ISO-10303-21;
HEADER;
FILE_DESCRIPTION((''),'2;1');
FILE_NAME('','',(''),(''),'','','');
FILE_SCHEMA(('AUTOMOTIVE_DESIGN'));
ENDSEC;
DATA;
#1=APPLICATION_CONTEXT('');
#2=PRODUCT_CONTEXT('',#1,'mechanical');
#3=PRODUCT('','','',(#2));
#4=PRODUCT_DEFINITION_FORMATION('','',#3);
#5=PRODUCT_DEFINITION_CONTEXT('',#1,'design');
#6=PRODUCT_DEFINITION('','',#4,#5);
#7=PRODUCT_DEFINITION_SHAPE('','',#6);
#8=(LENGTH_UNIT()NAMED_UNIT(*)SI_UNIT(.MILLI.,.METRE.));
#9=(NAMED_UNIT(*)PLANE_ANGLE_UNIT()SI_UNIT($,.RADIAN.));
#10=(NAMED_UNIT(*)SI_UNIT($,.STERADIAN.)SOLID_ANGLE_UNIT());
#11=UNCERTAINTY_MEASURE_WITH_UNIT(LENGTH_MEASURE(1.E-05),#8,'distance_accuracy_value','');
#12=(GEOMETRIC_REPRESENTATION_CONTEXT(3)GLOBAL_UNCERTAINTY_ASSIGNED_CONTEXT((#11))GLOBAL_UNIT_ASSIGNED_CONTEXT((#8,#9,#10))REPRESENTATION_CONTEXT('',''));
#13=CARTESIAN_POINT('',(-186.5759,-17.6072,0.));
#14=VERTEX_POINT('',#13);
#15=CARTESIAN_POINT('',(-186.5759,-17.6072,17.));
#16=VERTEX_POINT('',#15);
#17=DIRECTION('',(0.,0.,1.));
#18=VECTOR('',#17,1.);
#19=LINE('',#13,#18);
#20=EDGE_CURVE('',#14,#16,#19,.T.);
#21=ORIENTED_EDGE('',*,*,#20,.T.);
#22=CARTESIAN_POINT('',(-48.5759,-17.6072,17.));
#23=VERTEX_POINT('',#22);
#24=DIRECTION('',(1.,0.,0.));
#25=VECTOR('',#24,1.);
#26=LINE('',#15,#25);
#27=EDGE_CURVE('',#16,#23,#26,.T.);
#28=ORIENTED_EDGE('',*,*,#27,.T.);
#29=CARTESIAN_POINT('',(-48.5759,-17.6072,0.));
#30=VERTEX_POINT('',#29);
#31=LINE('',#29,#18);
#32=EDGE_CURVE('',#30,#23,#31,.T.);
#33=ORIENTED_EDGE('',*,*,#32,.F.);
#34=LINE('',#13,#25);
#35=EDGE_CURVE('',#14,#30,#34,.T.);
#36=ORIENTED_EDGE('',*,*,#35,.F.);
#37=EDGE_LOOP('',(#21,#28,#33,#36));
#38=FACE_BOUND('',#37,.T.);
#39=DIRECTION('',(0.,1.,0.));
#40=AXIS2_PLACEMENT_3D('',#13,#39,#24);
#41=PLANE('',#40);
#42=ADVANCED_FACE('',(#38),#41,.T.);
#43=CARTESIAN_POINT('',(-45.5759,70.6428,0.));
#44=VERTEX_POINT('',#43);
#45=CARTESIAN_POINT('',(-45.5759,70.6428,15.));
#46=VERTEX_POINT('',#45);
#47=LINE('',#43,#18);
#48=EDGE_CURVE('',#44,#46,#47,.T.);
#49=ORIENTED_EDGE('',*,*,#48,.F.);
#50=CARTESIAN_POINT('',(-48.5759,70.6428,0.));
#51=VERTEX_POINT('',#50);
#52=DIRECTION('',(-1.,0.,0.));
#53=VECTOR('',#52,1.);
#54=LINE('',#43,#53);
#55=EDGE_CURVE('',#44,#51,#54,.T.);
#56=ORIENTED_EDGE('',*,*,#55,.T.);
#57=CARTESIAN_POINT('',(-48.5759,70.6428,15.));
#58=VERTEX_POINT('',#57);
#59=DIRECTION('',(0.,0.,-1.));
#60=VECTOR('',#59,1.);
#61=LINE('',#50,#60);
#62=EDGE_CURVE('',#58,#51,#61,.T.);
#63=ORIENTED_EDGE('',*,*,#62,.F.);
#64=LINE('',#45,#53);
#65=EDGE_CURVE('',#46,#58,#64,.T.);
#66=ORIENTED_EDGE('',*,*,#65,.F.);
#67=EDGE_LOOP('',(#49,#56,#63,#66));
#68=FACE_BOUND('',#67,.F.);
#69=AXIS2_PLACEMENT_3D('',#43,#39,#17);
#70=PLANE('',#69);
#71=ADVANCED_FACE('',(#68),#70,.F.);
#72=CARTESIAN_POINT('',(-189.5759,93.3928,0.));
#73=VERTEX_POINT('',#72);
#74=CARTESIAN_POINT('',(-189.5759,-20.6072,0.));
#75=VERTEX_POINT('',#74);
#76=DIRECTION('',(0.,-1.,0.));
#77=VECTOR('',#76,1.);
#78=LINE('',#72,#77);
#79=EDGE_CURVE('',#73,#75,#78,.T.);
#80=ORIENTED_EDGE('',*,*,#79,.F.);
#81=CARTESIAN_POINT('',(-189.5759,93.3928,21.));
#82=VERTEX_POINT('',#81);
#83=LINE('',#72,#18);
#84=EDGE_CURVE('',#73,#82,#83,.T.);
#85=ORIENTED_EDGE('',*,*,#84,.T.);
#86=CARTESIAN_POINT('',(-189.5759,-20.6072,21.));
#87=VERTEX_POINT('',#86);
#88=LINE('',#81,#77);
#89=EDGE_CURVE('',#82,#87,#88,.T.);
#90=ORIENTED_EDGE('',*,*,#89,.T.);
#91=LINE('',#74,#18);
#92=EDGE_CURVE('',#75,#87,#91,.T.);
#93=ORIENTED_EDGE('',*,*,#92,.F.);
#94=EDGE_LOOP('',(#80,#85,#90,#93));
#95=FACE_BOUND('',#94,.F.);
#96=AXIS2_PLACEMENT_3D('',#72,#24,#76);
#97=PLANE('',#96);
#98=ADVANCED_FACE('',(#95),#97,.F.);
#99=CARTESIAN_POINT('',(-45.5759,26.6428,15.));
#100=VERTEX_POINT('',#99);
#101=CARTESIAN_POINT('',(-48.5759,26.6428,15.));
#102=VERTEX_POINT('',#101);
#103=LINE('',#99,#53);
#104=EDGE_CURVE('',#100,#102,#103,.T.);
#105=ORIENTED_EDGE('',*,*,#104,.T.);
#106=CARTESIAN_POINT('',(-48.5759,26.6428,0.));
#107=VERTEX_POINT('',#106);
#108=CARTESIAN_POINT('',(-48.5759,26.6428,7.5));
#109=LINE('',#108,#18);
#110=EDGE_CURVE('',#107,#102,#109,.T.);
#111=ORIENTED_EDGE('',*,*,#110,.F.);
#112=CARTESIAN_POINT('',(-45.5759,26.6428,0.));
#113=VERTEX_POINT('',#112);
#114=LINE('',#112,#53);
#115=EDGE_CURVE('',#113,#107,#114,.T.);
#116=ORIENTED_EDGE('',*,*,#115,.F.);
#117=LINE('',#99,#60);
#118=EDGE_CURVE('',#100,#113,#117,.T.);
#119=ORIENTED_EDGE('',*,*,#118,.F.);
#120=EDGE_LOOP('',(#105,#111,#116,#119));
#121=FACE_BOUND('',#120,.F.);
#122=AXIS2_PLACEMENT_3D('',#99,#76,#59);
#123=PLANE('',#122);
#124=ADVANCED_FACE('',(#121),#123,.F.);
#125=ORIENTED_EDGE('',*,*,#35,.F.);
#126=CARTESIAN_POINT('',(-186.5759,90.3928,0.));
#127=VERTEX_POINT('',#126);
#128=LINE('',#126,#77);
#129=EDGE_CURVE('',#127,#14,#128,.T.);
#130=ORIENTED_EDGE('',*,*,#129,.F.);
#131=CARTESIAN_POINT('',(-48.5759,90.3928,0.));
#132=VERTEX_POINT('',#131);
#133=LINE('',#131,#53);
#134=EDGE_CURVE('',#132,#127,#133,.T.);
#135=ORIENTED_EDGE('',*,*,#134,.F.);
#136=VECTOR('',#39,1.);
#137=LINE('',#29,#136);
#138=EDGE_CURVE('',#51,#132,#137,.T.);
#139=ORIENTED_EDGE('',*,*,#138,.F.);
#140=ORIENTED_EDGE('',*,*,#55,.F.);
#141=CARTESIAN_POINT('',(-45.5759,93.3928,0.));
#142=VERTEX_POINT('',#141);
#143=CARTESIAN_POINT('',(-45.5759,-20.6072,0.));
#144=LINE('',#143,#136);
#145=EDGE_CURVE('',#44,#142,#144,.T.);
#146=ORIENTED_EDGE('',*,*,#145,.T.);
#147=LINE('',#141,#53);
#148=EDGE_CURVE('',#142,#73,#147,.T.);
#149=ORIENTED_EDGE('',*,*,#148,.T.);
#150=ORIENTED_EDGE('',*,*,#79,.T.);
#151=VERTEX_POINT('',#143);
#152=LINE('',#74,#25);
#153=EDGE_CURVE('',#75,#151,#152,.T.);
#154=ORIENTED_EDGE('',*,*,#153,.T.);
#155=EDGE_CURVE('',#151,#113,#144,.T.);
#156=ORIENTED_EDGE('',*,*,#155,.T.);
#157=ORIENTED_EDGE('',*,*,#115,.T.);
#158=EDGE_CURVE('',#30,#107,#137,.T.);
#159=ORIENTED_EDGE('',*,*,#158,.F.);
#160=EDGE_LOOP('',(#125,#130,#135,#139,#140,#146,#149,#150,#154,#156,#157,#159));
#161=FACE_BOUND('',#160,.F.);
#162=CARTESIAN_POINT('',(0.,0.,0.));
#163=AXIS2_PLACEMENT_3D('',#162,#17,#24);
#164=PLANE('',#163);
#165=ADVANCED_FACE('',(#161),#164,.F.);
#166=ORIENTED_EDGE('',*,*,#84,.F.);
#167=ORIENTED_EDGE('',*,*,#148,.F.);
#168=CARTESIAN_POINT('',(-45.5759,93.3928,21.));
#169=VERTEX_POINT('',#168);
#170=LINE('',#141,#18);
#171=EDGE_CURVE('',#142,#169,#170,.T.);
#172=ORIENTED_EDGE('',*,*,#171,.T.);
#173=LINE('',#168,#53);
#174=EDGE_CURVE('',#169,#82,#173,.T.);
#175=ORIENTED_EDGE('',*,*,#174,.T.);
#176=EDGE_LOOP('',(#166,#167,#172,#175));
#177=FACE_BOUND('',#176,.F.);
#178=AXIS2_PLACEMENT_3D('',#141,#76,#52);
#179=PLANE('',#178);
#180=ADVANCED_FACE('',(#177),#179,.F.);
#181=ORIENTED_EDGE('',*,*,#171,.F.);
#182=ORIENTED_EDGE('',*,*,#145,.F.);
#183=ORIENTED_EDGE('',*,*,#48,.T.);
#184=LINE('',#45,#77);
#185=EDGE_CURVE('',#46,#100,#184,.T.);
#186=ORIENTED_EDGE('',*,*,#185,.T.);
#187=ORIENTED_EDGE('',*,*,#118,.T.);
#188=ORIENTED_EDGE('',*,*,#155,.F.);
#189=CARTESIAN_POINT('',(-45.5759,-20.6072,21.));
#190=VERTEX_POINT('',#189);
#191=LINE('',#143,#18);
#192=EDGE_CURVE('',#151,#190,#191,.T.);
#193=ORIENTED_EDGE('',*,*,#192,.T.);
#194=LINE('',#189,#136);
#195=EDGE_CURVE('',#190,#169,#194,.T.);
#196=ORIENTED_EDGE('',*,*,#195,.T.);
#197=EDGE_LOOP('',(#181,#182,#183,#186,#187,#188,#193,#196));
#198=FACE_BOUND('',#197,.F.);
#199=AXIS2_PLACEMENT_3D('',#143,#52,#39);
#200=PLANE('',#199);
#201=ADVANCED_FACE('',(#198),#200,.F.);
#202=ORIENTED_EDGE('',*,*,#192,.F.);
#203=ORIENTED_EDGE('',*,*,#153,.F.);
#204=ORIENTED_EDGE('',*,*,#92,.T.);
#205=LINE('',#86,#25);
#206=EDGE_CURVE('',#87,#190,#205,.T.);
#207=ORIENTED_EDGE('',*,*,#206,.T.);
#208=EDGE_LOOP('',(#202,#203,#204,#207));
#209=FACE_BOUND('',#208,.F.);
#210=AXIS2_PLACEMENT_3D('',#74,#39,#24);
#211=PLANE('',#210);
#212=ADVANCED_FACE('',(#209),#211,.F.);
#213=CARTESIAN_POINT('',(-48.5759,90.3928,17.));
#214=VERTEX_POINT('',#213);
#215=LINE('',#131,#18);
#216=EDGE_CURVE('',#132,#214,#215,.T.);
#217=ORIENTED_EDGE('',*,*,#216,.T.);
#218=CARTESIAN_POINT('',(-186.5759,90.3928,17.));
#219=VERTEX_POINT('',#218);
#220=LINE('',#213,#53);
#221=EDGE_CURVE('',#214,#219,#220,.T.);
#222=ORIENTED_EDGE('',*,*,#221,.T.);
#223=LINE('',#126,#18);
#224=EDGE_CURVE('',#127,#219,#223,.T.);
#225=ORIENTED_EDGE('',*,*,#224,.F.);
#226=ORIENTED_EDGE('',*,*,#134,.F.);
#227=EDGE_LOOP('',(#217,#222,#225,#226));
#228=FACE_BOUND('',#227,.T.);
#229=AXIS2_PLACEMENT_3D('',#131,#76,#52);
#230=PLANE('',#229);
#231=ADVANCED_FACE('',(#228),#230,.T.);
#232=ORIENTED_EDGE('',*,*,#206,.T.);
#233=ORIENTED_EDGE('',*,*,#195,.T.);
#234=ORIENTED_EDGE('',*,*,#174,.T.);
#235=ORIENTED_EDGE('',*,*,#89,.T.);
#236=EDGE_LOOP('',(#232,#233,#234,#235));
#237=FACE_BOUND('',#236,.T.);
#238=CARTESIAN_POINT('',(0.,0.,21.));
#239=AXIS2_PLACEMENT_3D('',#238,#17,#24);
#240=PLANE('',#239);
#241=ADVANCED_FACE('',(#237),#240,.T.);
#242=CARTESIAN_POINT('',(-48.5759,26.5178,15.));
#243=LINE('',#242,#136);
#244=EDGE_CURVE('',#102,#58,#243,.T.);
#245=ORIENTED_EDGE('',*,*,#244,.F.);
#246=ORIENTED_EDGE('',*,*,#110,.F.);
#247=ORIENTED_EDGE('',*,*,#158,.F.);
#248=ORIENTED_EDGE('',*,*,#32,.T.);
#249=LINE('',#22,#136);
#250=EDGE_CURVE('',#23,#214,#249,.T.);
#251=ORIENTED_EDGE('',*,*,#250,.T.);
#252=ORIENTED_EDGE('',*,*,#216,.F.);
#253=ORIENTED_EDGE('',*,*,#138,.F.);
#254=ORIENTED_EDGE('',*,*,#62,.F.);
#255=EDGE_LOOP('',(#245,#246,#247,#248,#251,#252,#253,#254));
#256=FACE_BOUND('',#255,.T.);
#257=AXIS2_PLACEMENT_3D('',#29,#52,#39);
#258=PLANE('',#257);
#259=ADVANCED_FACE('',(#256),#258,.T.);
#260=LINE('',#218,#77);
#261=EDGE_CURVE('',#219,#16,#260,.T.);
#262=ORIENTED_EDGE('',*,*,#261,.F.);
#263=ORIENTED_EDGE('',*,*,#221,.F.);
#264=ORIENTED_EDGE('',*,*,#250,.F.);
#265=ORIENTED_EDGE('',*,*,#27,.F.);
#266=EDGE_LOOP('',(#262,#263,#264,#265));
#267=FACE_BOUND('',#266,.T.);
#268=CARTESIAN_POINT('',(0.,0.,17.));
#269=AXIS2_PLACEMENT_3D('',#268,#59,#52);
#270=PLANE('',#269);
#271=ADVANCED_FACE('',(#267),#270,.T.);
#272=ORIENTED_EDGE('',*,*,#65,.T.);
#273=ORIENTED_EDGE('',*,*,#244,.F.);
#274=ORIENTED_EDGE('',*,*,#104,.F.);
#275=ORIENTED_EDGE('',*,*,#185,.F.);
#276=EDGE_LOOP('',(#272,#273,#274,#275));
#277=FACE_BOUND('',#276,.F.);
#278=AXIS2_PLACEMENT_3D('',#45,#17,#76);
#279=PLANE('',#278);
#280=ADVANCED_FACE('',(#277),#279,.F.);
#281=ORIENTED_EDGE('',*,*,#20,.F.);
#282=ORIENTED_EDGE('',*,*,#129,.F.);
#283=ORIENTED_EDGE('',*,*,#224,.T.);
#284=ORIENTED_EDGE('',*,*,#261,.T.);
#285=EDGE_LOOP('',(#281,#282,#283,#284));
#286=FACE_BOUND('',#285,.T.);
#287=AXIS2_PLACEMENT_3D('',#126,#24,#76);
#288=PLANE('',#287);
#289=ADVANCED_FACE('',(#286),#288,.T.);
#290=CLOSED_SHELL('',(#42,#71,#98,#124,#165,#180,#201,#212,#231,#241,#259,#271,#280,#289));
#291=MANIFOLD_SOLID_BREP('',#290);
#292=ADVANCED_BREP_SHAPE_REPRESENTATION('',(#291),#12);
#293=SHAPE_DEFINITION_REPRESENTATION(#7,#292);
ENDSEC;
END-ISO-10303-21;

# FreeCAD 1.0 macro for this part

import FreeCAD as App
import Part
import Sketcher
from FreeCAD import Vector

doc = App.newDocument("Part")
body = doc.addObject("PartDesign::Body", "Body")

# Sketch on XY plane
sketch1 = body.newObject("Sketcher::SketchObject", "Sketch")
sketch1.AttachmentSupport = (doc.getObject("XY_Plane"), [""])
sketch1.MapMode = "FlatFace"
sketch1.addGeometry([
    Part.LineSegment(Vector(-46, -21, 0), Vector(-46, 93, 0)),
    Part.LineSegment(Vector(-46, 93, 0), Vector(-190, 93, 0)),
    Part.LineSegment(Vector(-190, 93, 0), Vector(-190, -21, 0)),
    Part.LineSegment(Vector(-190, -21, 0), Vector(-46, -21, 0)),
], False)
sketch1.addConstraint([
    Sketcher.Constraint("Coincident", 0, 2, 1, 1),
    Sketcher.Constraint("Coincident", 1, 2, 2, 1),
    Sketcher.Constraint("Coincident", 2, 2, 3, 1),
    Sketcher.Constraint("Coincident", 3, 2, 0, 1),
    Sketcher.Constraint("Vertical", 0),
    Sketcher.Constraint("Horizontal", 1),
    Sketcher.Constraint("Vertical", 2),
    Sketcher.Constraint("Horizontal", 3),
    Sketcher.Constraint("DistanceX", 1, 2, 1, 1, 144.0),
    Sketcher.Constraint("DistanceY", 0, 1, 0, 2, 114.0),
    Sketcher.Constraint("DistanceX", 0, 2, -1, 1, 45.576),
    Sketcher.Constraint("DistanceY", -1, 1, 0, 2, 93.3928),
])
pad1 = body.newObject("PartDesign::Pad", "Pad")
pad1.Profile = sketch1
pad1.Length = 21

# Sketch on XY plane
sketch2 = body.newObject("Sketcher::SketchObject", "Sketch001")
sketch2.AttachmentSupport = (doc.getObject("XY_Plane"), [""])
sketch2.MapMode = "FlatFace"
sketch2.addGeometry([
    Part.LineSegment(Vector(-49, -18, 0), Vector(-187, -18, 0)),
    Part.LineSegment(Vector(-187, -18, 0), Vector(-187, 90, 0)),
    Part.LineSegment(Vector(-187, 90, 0), Vector(-49, 90, 0)),
    Part.LineSegment(Vector(-49, 90, 0), Vector(-49, -18, 0)),
], False)
sketch2.addConstraint([
    Sketcher.Constraint("Coincident", 0, 2, 1, 1),
    Sketcher.Constraint("Coincident", 1, 2, 2, 1),
    Sketcher.Constraint("Coincident", 2, 2, 3, 1),
    Sketcher.Constraint("Coincident", 3, 2, 0, 1),
    Sketcher.Constraint("Horizontal", 0),
    Sketcher.Constraint("Vertical", 1),
    Sketcher.Constraint("Horizontal", 2),
    Sketcher.Constraint("Vertical", 3),
    Sketcher.Constraint("DistanceX", 0, 2, 0, 1, 138.0),
    Sketcher.Constraint("DistanceY", 1, 1, 1, 2, 108.0),
    Sketcher.Constraint("DistanceX", 0, 2, -1, 1, 186.576),
    Sketcher.Constraint("DistanceY", 0, 2, -1, 1, 17.6072),
])
pocket1 = body.newObject("PartDesign::Pocket", "Pocket")
pocket1.Profile = sketch2
pocket1.Length = 17
pocket1.Reversed = True

# Sketch on YZ plane
sketch3 = body.newObject("Sketcher::SketchObject", "Sketch002")
sketch3.AttachmentSupport = (doc.getObject("YZ_Plane"), [""])
sketch3.MapMode = "FlatFace"
sketch3.AttachmentOffset = App.Placement(Vector(0, 0, -45.5759), App.Rotation())
sketch3.addGeometry([
    Part.LineSegment(Vector(71, 15, 0), Vector(27, 15, 0)),
    Part.LineSegment(Vector(27, 15, 0), Vector(27, 0, 0)),
    Part.LineSegment(Vector(27, 0, 0), Vector(71, 0, 0)),
    Part.LineSegment(Vector(71, 0, 0), Vector(71, 15, 0)),
], False)
sketch3.addConstraint([
    Sketcher.Constraint("Coincident", 0, 2, 1, 1),
    Sketcher.Constraint("Coincident", 1, 2, 2, 1),
    Sketcher.Constraint("Coincident", 2, 2, 3, 1),
    Sketcher.Constraint("Coincident", 3, 2, 0, 1),
    Sketcher.Constraint("Horizontal", 0),
    Sketcher.Constraint("Vertical", 1),
    Sketcher.Constraint("Horizontal", 2),
    Sketcher.Constraint("Vertical", 3),
    Sketcher.Constraint("PointOnObject", 1, 2, -1),
    Sketcher.Constraint("DistanceX", 0, 2, 0, 1, 44.0),
    Sketcher.Constraint("DistanceY", 1, 2, 1, 1, 15.0),
    Sketcher.Constraint("DistanceX", -1, 1, 0, 2, 26.6428),
])
pocket2 = body.newObject("PartDesign::Pocket", "Pocket001")
pocket2.Profile = sketch3
pocket2.Length = 5

doc.recompute()
